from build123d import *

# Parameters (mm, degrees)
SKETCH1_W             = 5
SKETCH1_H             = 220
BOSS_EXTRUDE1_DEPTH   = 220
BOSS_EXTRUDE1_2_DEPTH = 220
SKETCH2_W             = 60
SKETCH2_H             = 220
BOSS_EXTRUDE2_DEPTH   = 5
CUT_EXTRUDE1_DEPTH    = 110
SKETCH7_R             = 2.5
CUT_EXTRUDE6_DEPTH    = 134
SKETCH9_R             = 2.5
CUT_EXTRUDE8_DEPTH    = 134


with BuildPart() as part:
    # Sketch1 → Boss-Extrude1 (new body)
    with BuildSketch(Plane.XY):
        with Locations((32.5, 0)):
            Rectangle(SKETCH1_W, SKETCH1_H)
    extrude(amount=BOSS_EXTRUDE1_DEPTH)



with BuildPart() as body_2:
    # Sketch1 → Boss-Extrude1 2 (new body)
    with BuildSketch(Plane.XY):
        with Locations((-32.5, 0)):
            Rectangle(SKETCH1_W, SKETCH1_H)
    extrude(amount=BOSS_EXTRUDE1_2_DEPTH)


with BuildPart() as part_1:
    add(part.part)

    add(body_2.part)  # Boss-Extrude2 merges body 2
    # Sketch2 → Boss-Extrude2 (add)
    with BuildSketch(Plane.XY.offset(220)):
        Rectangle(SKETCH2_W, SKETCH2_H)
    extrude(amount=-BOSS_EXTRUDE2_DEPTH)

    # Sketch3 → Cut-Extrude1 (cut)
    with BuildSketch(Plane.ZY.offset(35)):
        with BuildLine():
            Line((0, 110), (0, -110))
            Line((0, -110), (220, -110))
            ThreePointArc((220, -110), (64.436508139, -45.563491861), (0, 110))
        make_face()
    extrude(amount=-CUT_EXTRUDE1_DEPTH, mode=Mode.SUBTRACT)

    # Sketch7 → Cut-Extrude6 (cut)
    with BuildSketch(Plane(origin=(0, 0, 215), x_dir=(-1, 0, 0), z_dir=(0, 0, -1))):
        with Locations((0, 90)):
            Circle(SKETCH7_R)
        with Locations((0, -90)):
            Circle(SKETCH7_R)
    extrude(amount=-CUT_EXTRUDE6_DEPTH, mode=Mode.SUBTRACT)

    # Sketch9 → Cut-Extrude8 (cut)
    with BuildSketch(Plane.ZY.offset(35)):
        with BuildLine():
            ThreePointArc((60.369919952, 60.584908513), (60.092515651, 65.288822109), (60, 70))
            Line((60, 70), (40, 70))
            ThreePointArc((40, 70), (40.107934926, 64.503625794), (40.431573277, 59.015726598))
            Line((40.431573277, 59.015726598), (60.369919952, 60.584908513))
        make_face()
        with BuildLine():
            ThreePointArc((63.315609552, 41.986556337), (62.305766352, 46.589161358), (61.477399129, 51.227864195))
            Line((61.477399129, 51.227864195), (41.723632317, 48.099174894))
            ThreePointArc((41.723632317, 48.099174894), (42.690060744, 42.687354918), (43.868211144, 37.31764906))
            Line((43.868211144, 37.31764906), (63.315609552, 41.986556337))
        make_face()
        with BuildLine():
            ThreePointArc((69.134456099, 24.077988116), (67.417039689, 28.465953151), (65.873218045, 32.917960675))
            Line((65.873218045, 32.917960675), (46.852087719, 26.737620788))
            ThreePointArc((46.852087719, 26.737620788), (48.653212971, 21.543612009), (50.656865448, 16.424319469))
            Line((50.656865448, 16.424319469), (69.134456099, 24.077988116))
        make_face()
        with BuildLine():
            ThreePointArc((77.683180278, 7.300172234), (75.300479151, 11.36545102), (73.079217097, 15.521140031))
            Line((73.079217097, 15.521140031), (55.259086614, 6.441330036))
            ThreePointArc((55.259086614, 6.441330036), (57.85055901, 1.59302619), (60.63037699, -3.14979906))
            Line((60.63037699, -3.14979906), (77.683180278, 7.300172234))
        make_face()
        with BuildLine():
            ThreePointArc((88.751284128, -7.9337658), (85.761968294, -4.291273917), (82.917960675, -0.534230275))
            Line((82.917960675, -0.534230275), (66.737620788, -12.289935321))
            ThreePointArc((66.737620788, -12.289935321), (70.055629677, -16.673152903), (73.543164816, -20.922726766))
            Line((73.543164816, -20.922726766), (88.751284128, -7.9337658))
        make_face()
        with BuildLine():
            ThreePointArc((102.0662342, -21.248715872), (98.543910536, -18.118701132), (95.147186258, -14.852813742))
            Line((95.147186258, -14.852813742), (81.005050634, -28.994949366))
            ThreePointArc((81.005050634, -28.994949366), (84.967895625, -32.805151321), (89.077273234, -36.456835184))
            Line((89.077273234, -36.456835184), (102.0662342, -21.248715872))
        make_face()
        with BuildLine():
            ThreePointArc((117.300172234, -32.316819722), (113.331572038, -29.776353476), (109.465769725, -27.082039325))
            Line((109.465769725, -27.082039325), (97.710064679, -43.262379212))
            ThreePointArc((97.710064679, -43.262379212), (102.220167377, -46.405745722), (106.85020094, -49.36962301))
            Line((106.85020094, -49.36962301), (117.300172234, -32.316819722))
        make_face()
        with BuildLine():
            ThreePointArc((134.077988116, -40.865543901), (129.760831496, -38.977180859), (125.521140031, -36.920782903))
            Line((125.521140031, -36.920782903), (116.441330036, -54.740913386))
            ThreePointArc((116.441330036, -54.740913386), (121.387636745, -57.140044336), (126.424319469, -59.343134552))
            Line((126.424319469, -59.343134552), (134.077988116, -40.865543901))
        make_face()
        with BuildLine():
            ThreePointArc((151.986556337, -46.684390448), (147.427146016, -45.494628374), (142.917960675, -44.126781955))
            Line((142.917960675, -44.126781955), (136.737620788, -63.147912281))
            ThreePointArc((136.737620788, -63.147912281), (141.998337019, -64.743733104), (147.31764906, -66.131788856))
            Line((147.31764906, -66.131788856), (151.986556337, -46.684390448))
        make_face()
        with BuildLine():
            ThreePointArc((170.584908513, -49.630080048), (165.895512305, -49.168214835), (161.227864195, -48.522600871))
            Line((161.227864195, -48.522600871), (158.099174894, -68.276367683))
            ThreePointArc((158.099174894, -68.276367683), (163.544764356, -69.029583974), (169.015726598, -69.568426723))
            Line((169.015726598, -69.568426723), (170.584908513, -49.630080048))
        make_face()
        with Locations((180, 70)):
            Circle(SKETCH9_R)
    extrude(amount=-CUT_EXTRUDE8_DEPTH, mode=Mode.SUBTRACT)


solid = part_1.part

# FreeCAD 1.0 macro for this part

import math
import FreeCAD as App
import Part
import Sketcher

V = App.Vector
Q = App.Units.Quantity


def add_polygon(sketch, points):
    """Adds a closed chain of lines whose ends are joined by coincident constraints."""
    first, n = sketch.GeometryCount, len(points)
    for a, b in zip(points, points[1:] + points[:1]):
        sketch.addGeometry(Part.LineSegment(App.Vector(*a, 0), App.Vector(*b, 0)), False)
    for i in range(n):
        sketch.addConstraint(Sketcher.Constraint("Coincident", first + i, 2, first + (i + 1) % n, 1))

doc = App.newDocument("Part")
params = doc.addObject("Spreadsheet::Sheet", "Params")
for row, (alias, value) in enumerate([
    ("sketch1_width", "5 mm"),
    ("sketch1_height", "220 mm"),
    ("pad1_length", "220 mm"),
    ("sketch2_width", "5 mm"),
    ("sketch2_height", "220 mm"),
    ("pad2_length", "220 mm"),
    ("sketch3_width", "60 mm"),
    ("sketch3_height", "220 mm"),
    ("pad3_length", "5 mm"),
    ("sketch4_radius", "220 mm"),
    ("pocket1_length", "110 mm"),
    ("sketch5_diameter", "5 mm"),
    ("pocket2_length", "134 mm"),
    ("sketch6_diameter", "5 mm"),
    ("sketch6_radius", "120 mm"),
    ("sketch6_radius2", "140 mm"),
    ("pocket3_length", "134 mm"),
], start=1):
    params.set(f"A{row}", alias)
    params.set(f"B{row}", "=" + value)
    params.setAlias(f"B{row}", alias)

body = doc.addObject("PartDesign::Body", "Body")

# Sketch on XY plane
sketch1 = doc.addObject("Sketcher::SketchObject", "Sketch")
body.addObject(sketch1)
sketch1.AttachmentSupport = (doc.XY_Plane, [""])
sketch1.MapMode = "FlatFace"
add_polygon(sketch1, [(30, 110), (30, -110), (35, -110), (35, 110)])  # lines 0-3
sketch1.addConstraint(Sketcher.Constraint("Vertical", 0))
sketch1.addConstraint(Sketcher.Constraint("Horizontal", 1))
sketch1.addConstraint(Sketcher.Constraint("Vertical", 2))
sketch1.addConstraint(Sketcher.Constraint("Horizontal", 3))
sketch1.addConstraint(Sketcher.Constraint("DistanceX", 1, 1, 1, 2, 5.0))
sketch1.addConstraint(Sketcher.Constraint("DistanceY", 0, 2, 0, 1, 220.0))
sketch1.addConstraint(Sketcher.Constraint("DistanceX", -1, 1, 0, 2, 30.0))
sketch1.addConstraint(Sketcher.Constraint("DistanceY", 0, 2, -1, 1, 110.0))
sketch1.setExpression("Constraints[8]", "Params.sketch1_width")
sketch1.setExpression("Constraints[9]", "Params.sketch1_height")
pad1 = doc.addObject("PartDesign::Pad", "Pad")
body.addObject(pad1)
pad1.Profile = sketch1
pad1.setExpression("Length", "Params.pad1_length")
body2 = doc.addObject("PartDesign::Body", "Body001")

# Sketch on XY plane
sketch2 = doc.addObject("Sketcher::SketchObject", "Sketch001")
body2.addObject(sketch2)
sketch2.AttachmentSupport = (doc.getObject("XY_Plane001"), [""])
sketch2.MapMode = "FlatFace"
add_polygon(sketch2, [(-35, 110), (-35, -110), (-30, -110), (-30, 110)])  # lines 0-3
sketch2.addConstraint(Sketcher.Constraint("Vertical", 0))
sketch2.addConstraint(Sketcher.Constraint("Horizontal", 1))
sketch2.addConstraint(Sketcher.Constraint("Vertical", 2))
sketch2.addConstraint(Sketcher.Constraint("Horizontal", 3))
sketch2.addConstraint(Sketcher.Constraint("DistanceX", 1, 1, 1, 2, 5.0))
sketch2.addConstraint(Sketcher.Constraint("DistanceY", 0, 2, 0, 1, 220.0))
sketch2.addConstraint(Sketcher.Constraint("DistanceX", 0, 2, -1, 1, 35.0))
sketch2.addConstraint(Sketcher.Constraint("DistanceY", 0, 2, -1, 1, 110.0))
sketch2.setExpression("Constraints[8]", "Params.sketch2_width")
sketch2.setExpression("Constraints[9]", "Params.sketch2_height")
pad2 = doc.addObject("PartDesign::Pad", "Pad001")
body2.addObject(pad2)
pad2.Profile = sketch2
pad2.setExpression("Length", "Params.pad2_length")
body.AllowCompound = True
doc.recompute()

boolean = doc.addObject("PartDesign::Boolean", "Boolean")
body.addObject(boolean)
boolean.Type = "Fuse"
boolean.addObjects([body2])

# Sketch on XY plane
sketch3 = doc.addObject("Sketcher::SketchObject", "Sketch002")
body.addObject(sketch3)
sketch3.AttachmentSupport = (doc.XY_Plane, [""])
sketch3.MapMode = "FlatFace"
sketch3.AttachmentOffset = App.Placement(V(0, 0, 220), App.Rotation())
add_polygon(sketch3, [(-30, 110), (-30, -110), (30, -110), (30, 110)])  # lines 0-3
sketch3.addConstraint(Sketcher.Constraint("Vertical", 0))
sketch3.addConstraint(Sketcher.Constraint("Horizontal", 1))
sketch3.addConstraint(Sketcher.Constraint("Vertical", 2))
sketch3.addConstraint(Sketcher.Constraint("Horizontal", 3))
sketch3.addConstraint(Sketcher.Constraint("Symmetric", 0, 2, 2, 2, -1, 1))
sketch3.addConstraint(Sketcher.Constraint("DistanceX", 1, 1, 1, 2, 60.0))
sketch3.addConstraint(Sketcher.Constraint("DistanceY", 0, 2, 0, 1, 220.0))
sketch3.setExpression("Constraints[9]", "Params.sketch3_width")
sketch3.setExpression("Constraints[10]", "Params.sketch3_height")
pad3 = doc.addObject("PartDesign::Pad", "Pad002")
body.addObject(pad3)
pad3.Profile = sketch3
pad3.setExpression("Length", "Params.pad3_length")
pad3.Reversed = True

# Sketch on YZ plane
sketch4 = doc.addObject("Sketcher::SketchObject", "Sketch003")
body.addObject(sketch4)
sketch4.AttachmentSupport = (doc.YZ_Plane, [""])
sketch4.MapMode = "FlatFace"
sketch4.AttachmentOffset = App.Placement(V(0, 0, -35), App.Rotation())
sketch4.addGeometry(Part.LineSegment(V(110, 0, 0), V(-110, 0, 0)), False)
sketch4.addGeometry(Part.LineSegment(V(-110, 0, 0), V(-110, 220, 0)), False)
sketch4.addGeometry(Part.ArcOfCircle(Part.Circle(V(110, 220, 0), V(0, 0, 1), 220), math.radians(180), math.radians(270)), False)
sketch4.addConstraint(Sketcher.Constraint("Coincident", 0, 2, 1, 1))
sketch4.addConstraint(Sketcher.Constraint("Tangent", 1, 2, 2, 1))
sketch4.addConstraint(Sketcher.Constraint("Tangent", 2, 2, 0, 1))
sketch4.addConstraint(Sketcher.Constraint("Horizontal", 0))
sketch4.addConstraint(Sketcher.Constraint("Vertical", 1))
sketch4.addConstraint(Sketcher.Constraint("Symmetric", 0, 2, 2, 2, -1, 1))
sketch4.addConstraint(Sketcher.Constraint("Radius", 2, 220.0))
sketch4.setExpression("Constraints[6]", "Params.sketch4_radius")
pocket1 = doc.addObject("PartDesign::Pocket", "Pocket")
body.addObject(pocket1)
pocket1.Profile = sketch4
pocket1.setExpression("Length", "Params.pocket1_length")
pocket1.Reversed = True

# Sketch on XY plane
sketch5 = doc.addObject("Sketcher::SketchObject", "Sketch004")
body.addObject(sketch5)
sketch5.AttachmentSupport = (doc.XY_Plane, [""])
sketch5.MapMode = "FlatFace"
sketch5.AttachmentOffset = App.Placement(V(0, 0, 215), App.Rotation())
sketch5.addGeometry(Part.Circle(V(0, 90, 0), V(0, 0, 1), 2.5), False)
sketch5.addGeometry(Part.Circle(V(0, -90, 0), V(0, 0, 1), 2.5), False)
sketch5.addConstraint(Sketcher.Constraint("Equal", 0, 1))
sketch5.addConstraint(Sketcher.Constraint("Symmetric", 0, 3, 1, 3, -1, 1))
sketch5.addConstraint(Sketcher.Constraint("PointOnObject", 0, 3, -2))
sketch5.addConstraint(Sketcher.Constraint("Diameter", 0, 5.0))
sketch5.addConstraint(Sketcher.Constraint("DistanceY", -1, 1, 0, 3, 90.0))
sketch5.setExpression("Constraints[3]", "Params.sketch5_diameter")
pocket2 = doc.addObject("PartDesign::Pocket", "Pocket001")
body.addObject(pocket2)
pocket2.Profile = sketch5
pocket2.setExpression("Length", "Params.pocket2_length")
pocket2.Reversed = True

# Sketch on YZ plane
sketch6 = doc.addObject("Sketcher::SketchObject", "Sketch005")
body.addObject(sketch6)
sketch6.AttachmentSupport = (doc.YZ_Plane, [""])
sketch6.MapMode = "FlatFace"
sketch6.AttachmentOffset = App.Placement(V(0, 0, -35), App.Rotation())
sketch6.addGeometry(Part.ArcOfCircle(Part.Circle(V(70, 180, 0), V(0, 0, 1), 120), math.radians(-94.5), math.radians(-90)), False)
sketch6.addGeometry(Part.LineSegment(V(70, 60, 0), V(70, 40, 0)), False)
sketch6.addGeometry(Part.ArcOfCircle(Part.Circle(V(70, 180, 0), V(0, 0, 1), 140), math.radians(-94.5), math.radians(-90)), False)
sketch6.addGeometry(Part.LineSegment(V(59, 40.4, 0), V(60.6, 60.4, 0)), False)
sketch6.addGeometry(Part.ArcOfCircle(Part.Circle(V(70, 180, 0), V(0, 0, 1), 120), math.radians(-103.5), math.radians(-99)), False)
sketch6.addGeometry(Part.LineSegment(V(51.2, 61.5, 0), V(48.1, 41.7, 0)), False)
sketch6.addGeometry(Part.ArcOfCircle(Part.Circle(V(70, 180, 0), V(0, 0, 1), 140), math.radians(-103.5), math.radians(-99)), False)
sketch6.addGeometry(Part.LineSegment(V(37.3, 43.9, 0), V(42, 63.3, 0)), False)
sketch6.addGeometry(Part.ArcOfCircle(Part.Circle(V(70, 180, 0), V(0, 0, 1), 120), math.radians(-112.5), math.radians(-108)), False)
sketch6.addGeometry(Part.LineSegment(V(32.9, 65.9, 0), V(26.7, 46.9, 0)), False)
sketch6.addGeometry(Part.ArcOfCircle(Part.Circle(V(70, 180, 0), V(0, 0, 1), 140), math.radians(-112.5), math.radians(-108)), False)
sketch6.addGeometry(Part.LineSegment(V(16.4, 50.7, 0), V(24.1, 69.1, 0)), False)
sketch6.addGeometry(Part.ArcOfCircle(Part.Circle(V(70, 180, 0), V(0, 0, 1), 120), math.radians(-121.5), math.radians(-117)), False)
sketch6.addGeometry(Part.LineSegment(V(15.5, 73.1, 0), V(6.4, 55.3, 0)), False)
sketch6.addGeometry(Part.ArcOfCircle(Part.Circle(V(70, 180, 0), V(0, 0, 1), 140), math.radians(-121.5), math.radians(-117)), False)
sketch6.addGeometry(Part.LineSegment(V(-3.1, 60.6, 0), V(7.3, 77.7, 0)), False)
sketch6.addGeometry(Part.ArcOfCircle(Part.Circle(V(70, 180, 0), V(0, 0, 1), 120), math.radians(-130.5), math.radians(-126)), False)
sketch6.addGeometry(Part.LineSegment(V(-0.5, 82.9, 0), V(-12.3, 66.7, 0)), False)
sketch6.addGeometry(Part.ArcOfCircle(Part.Circle(V(70, 180, 0), V(0, 0, 1), 140), math.radians(-130.5), math.radians(-126)), False)
sketch6.addGeometry(Part.LineSegment(V(-20.9, 73.5, 0), V(-7.9, 88.8, 0)), False)
sketch6.addGeometry(Part.ArcOfCircle(Part.Circle(V(70, 180, 0), V(0, 0, 1), 120), math.radians(-139.5), math.radians(-135)), False)
sketch6.addGeometry(Part.LineSegment(V(-14.9, 95.1, 0), V(-29, 81, 0)), False)
sketch6.addGeometry(Part.ArcOfCircle(Part.Circle(V(70, 180, 0), V(0, 0, 1), 140), math.radians(-139.5), math.radians(-135)), False)
sketch6.addGeometry(Part.LineSegment(V(-36.5, 89.1, 0), V(-21.2, 102.1, 0)), False)
sketch6.addGeometry(Part.ArcOfCircle(Part.Circle(V(70, 180, 0), V(0, 0, 1), 120), math.radians(-148.5), math.radians(-144)), False)
sketch6.addGeometry(Part.LineSegment(V(-27.1, 109.5, 0), V(-43.3, 97.7, 0)), False)
sketch6.addGeometry(Part.ArcOfCircle(Part.Circle(V(70, 180, 0), V(0, 0, 1), 140), math.radians(-148.5), math.radians(-144)), False)
sketch6.addGeometry(Part.LineSegment(V(-49.4, 106.9, 0), V(-32.3, 117.3, 0)), False)
sketch6.addGeometry(Part.ArcOfCircle(Part.Circle(V(70, 180, 0), V(0, 0, 1), 120), math.radians(-157.5), math.radians(-153)), False)
sketch6.addGeometry(Part.LineSegment(V(-36.9, 125.5, 0), V(-54.7, 116.4, 0)), False)
sketch6.addGeometry(Part.ArcOfCircle(Part.Circle(V(70, 180, 0), V(0, 0, 1), 140), math.radians(-157.5), math.radians(-153)), False)
sketch6.addGeometry(Part.LineSegment(V(-59.3, 126.4, 0), V(-40.9, 134.1, 0)), False)
sketch6.addGeometry(Part.ArcOfCircle(Part.Circle(V(70, 180, 0), V(0, 0, 1), 120), math.radians(-166.5), math.radians(-162)), False)
sketch6.addGeometry(Part.LineSegment(V(-44.1, 142.9, 0), V(-63.1, 136.7, 0)), False)
sketch6.addGeometry(Part.ArcOfCircle(Part.Circle(V(70, 180, 0), V(0, 0, 1), 140), math.radians(-166.5), math.radians(-162)), False)
sketch6.addGeometry(Part.LineSegment(V(-66.1, 147.3, 0), V(-46.7, 152, 0)), False)
sketch6.addGeometry(Part.ArcOfCircle(Part.Circle(V(70, 180, 0), V(0, 0, 1), 120), math.radians(-175.5), math.radians(-171)), False)
sketch6.addGeometry(Part.LineSegment(V(-48.5, 161.2, 0), V(-68.3, 158.1, 0)), False)
sketch6.addGeometry(Part.ArcOfCircle(Part.Circle(V(70, 180, 0), V(0, 0, 1), 140), math.radians(-175.5), math.radians(-171)), False)
sketch6.addGeometry(Part.LineSegment(V(-69.6, 169, 0), V(-49.6, 170.6, 0)), False)
sketch6.addGeometry(Part.Circle(V(70, 180, 0), V(0, 0, 1), 2.5), False)
sketch6.addConstraint(Sketcher.Constraint("Coincident", 0, 2, 1, 1))
sketch6.addConstraint(Sketcher.Constraint("Coincident", 1, 2, 2, 2))
sketch6.addConstraint(Sketcher.Constraint("Coincident", 2, 1, 3, 1))
sketch6.addConstraint(Sketcher.Constraint("Coincident", 3, 2, 0, 1))
sketch6.addConstraint(Sketcher.Constraint("Coincident", 4, 2, 5, 1))
sketch6.addConstraint(Sketcher.Constraint("Coincident", 5, 2, 6, 2))
sketch6.addConstraint(Sketcher.Constraint("Coincident", 6, 1, 7, 1))
sketch6.addConstraint(Sketcher.Constraint("Coincident", 7, 2, 4, 1))
sketch6.addConstraint(Sketcher.Constraint("Coincident", 8, 2, 9, 1))
sketch6.addConstraint(Sketcher.Constraint("Coincident", 9, 2, 10, 2))
sketch6.addConstraint(Sketcher.Constraint("Coincident", 10, 1, 11, 1))
sketch6.addConstraint(Sketcher.Constraint("Coincident", 11, 2, 8, 1))
sketch6.addConstraint(Sketcher.Constraint("Coincident", 12, 2, 13, 1))
sketch6.addConstraint(Sketcher.Constraint("Coincident", 13, 2, 14, 2))
sketch6.addConstraint(Sketcher.Constraint("Coincident", 14, 1, 15, 1))
sketch6.addConstraint(Sketcher.Constraint("Coincident", 15, 2, 12, 1))
sketch6.addConstraint(Sketcher.Constraint("Coincident", 16, 2, 17, 1))
sketch6.addConstraint(Sketcher.Constraint("Coincident", 17, 2, 18, 2))
sketch6.addConstraint(Sketcher.Constraint("Coincident", 18, 1, 19, 1))
sketch6.addConstraint(Sketcher.Constraint("Coincident", 19, 2, 16, 1))
sketch6.addConstraint(Sketcher.Constraint("Coincident", 20, 2, 21, 1))
sketch6.addConstraint(Sketcher.Constraint("Coincident", 21, 2, 22, 2))
sketch6.addConstraint(Sketcher.Constraint("Coincident", 22, 1, 23, 1))
sketch6.addConstraint(Sketcher.Constraint("Coincident", 23, 2, 20, 1))
sketch6.addConstraint(Sketcher.Constraint("Coincident", 24, 2, 25, 1))
sketch6.addConstraint(Sketcher.Constraint("Coincident", 25, 2, 26, 2))
sketch6.addConstraint(Sketcher.Constraint("Coincident", 26, 1, 27, 1))
sketch6.addConstraint(Sketcher.Constraint("Coincident", 27, 2, 24, 1))
sketch6.addConstraint(Sketcher.Constraint("Coincident", 28, 2, 29, 1))
sketch6.addConstraint(Sketcher.Constraint("Coincident", 29, 2, 30, 2))
sketch6.addConstraint(Sketcher.Constraint("Coincident", 30, 1, 31, 1))
sketch6.addConstraint(Sketcher.Constraint("Coincident", 31, 2, 28, 1))
sketch6.addConstraint(Sketcher.Constraint("Coincident", 32, 2, 33, 1))
sketch6.addConstraint(Sketcher.Constraint("Coincident", 33, 2, 34, 2))
sketch6.addConstraint(Sketcher.Constraint("Coincident", 34, 1, 35, 1))
sketch6.addConstraint(Sketcher.Constraint("Coincident", 35, 2, 32, 1))
sketch6.addConstraint(Sketcher.Constraint("Coincident", 36, 2, 37, 1))
sketch6.addConstraint(Sketcher.Constraint("Coincident", 37, 2, 38, 2))
sketch6.addConstraint(Sketcher.Constraint("Coincident", 38, 1, 39, 1))
sketch6.addConstraint(Sketcher.Constraint("Coincident", 39, 2, 36, 1))
sketch6.addConstraint(Sketcher.Constraint("Vertical", 1))
sketch6.addConstraint(Sketcher.Constraint("Coincident", 2, 3, 0, 3))
sketch6.addConstraint(Sketcher.Constraint("Coincident", 4, 3, 0, 3))
sketch6.addConstraint(Sketcher.Constraint("Coincident", 6, 3, 0, 3))
sketch6.addConstraint(Sketcher.Constraint("Coincident", 8, 3, 0, 3))
sketch6.addConstraint(Sketcher.Constraint("Coincident", 10, 3, 0, 3))
sketch6.addConstraint(Sketcher.Constraint("Coincident", 12, 3, 0, 3))
sketch6.addConstraint(Sketcher.Constraint("Coincident", 14, 3, 0, 3))
sketch6.addConstraint(Sketcher.Constraint("Coincident", 16, 3, 0, 3))
sketch6.addConstraint(Sketcher.Constraint("Coincident", 18, 3, 0, 3))
sketch6.addConstraint(Sketcher.Constraint("Coincident", 20, 3, 0, 3))
sketch6.addConstraint(Sketcher.Constraint("Coincident", 22, 3, 0, 3))
sketch6.addConstraint(Sketcher.Constraint("Coincident", 24, 3, 0, 3))
sketch6.addConstraint(Sketcher.Constraint("Coincident", 26, 3, 0, 3))
sketch6.addConstraint(Sketcher.Constraint("Coincident", 28, 3, 0, 3))
sketch6.addConstraint(Sketcher.Constraint("Coincident", 30, 3, 0, 3))
sketch6.addConstraint(Sketcher.Constraint("Coincident", 32, 3, 0, 3))
sketch6.addConstraint(Sketcher.Constraint("Coincident", 34, 3, 0, 3))
sketch6.addConstraint(Sketcher.Constraint("Coincident", 36, 3, 0, 3))
sketch6.addConstraint(Sketcher.Constraint("Coincident", 38, 3, 0, 3))
sketch6.addConstraint(Sketcher.Constraint("Coincident", 40, 3, 0, 3))
sketch6.addConstraint(Sketcher.Constraint("Equal", 0, 4))
sketch6.addConstraint(Sketcher.Constraint("Equal", 2, 6))
sketch6.addConstraint(Sketcher.Constraint("Equal", 4, 8))
sketch6.addConstraint(Sketcher.Constraint("Equal", 6, 10))
sketch6.addConstraint(Sketcher.Constraint("Equal", 8, 12))
sketch6.addConstraint(Sketcher.Constraint("Equal", 10, 14))
sketch6.addConstraint(Sketcher.Constraint("Equal", 12, 16))
sketch6.addConstraint(Sketcher.Constraint("Equal", 14, 18))
sketch6.addConstraint(Sketcher.Constraint("Equal", 16, 20))
sketch6.addConstraint(Sketcher.Constraint("Equal", 18, 22))
sketch6.addConstraint(Sketcher.Constraint("Equal", 20, 24))
sketch6.addConstraint(Sketcher.Constraint("Equal", 22, 26))
sketch6.addConstraint(Sketcher.Constraint("Equal", 24, 28))
sketch6.addConstraint(Sketcher.Constraint("Equal", 26, 30))
sketch6.addConstraint(Sketcher.Constraint("Equal", 28, 32))
sketch6.addConstraint(Sketcher.Constraint("Equal", 30, 34))
sketch6.addConstraint(Sketcher.Constraint("Equal", 32, 36))
sketch6.addConstraint(Sketcher.Constraint("Equal", 34, 38))
sketch6.addConstraint(Sketcher.Constraint("Vertical", 40, 3, 0, 2))
sketch6.addConstraint(Sketcher.Constraint("Diameter", 40, 5.0))
sketch6.addConstraint(Sketcher.Constraint("Radius", 0, 120.0))
sketch6.addConstraint(Sketcher.Constraint("Radius", 2, 140.0))
sketch6.addConstraint(Sketcher.Constraint("Angle", 5, Q("-99 deg")))
sketch6.addConstraint(Sketcher.Constraint("Angle", 9, Q("-108 deg")))
sketch6.addConstraint(Sketcher.Constraint("Angle", 13, Q("-117 deg")))
sketch6.addConstraint(Sketcher.Constraint("Angle", 17, Q("-126 deg")))
sketch6.addConstraint(Sketcher.Constraint("Angle", 21, Q("-135 deg")))
sketch6.addConstraint(Sketcher.Constraint("Angle", 25, Q("-144 deg")))
sketch6.addConstraint(Sketcher.Constraint("Angle", 29, Q("-153 deg")))
sketch6.addConstraint(Sketcher.Constraint("Angle", 33, Q("-162 deg")))
sketch6.addConstraint(Sketcher.Constraint("Angle", 37, Q("-171 deg")))
sketch6.addConstraint(Sketcher.Constraint("DistanceX", -1, 1, 0, 3, 70.0))
sketch6.addConstraint(Sketcher.Constraint("DistanceY", -1, 1, 0, 3, 180.0))
sketch6.addConstraint(Sketcher.Constraint("Angle", 3, Q("85.5 deg")))
sketch6.addConstraint(Sketcher.Constraint("Angle", 7, Q("76.5 deg")))
sketch6.addConstraint(Sketcher.Constraint("Angle", 11, Q("67.5 deg")))
sketch6.addConstraint(Sketcher.Constraint("Angle", 15, Q("58.5 deg")))
sketch6.addConstraint(Sketcher.Constraint("Angle", 19, Q("49.5 deg")))
sketch6.addConstraint(Sketcher.Constraint("Angle", 23, Q("40.5 deg")))
sketch6.addConstraint(Sketcher.Constraint("Angle", 27, Q("31.5 deg")))
sketch6.addConstraint(Sketcher.Constraint("Angle", 31, Q("22.5 deg")))
sketch6.addConstraint(Sketcher.Constraint("Angle", 35, Q("13.5 deg")))
sketch6.addConstraint(Sketcher.Constraint("Angle", 39, Q("4.5 deg")))
sketch6.addConstraint(Sketcher.Constraint("DistanceY", -1, 1, 4, 2, 61.477399))
sketch6.addConstraint(Sketcher.Constraint("DistanceX", 14, 1, -1, 1, 3.149799))
sketch6.addConstraint(Sketcher.Constraint("DistanceY", -1, 1, 26, 1, 106.850201))
sketch6.addConstraint(Sketcher.Constraint("DistanceX", 36, 2, -1, 1, 48.522601))
sketch6.addConstraint(Sketcher.Constraint("DistanceX", -1, 1, 3, 2, 60.584909))
sketch6.addConstraint(Sketcher.Constraint("DistanceX", -1, 1, 6, 1, 37.317649))
sketch6.addConstraint(Sketcher.Constraint("DistanceX", -1, 1, 8, 2, 32.917961))
sketch6.addConstraint(Sketcher.Constraint("DistanceX", -1, 1, 10, 1, 16.424319))
sketch6.addConstraint(Sketcher.Constraint("DistanceX", -1, 1, 12, 2, 15.52114))
sketch6.addConstraint(Sketcher.Constraint("DistanceX", 16, 2, -1, 1, 0.53423))
sketch6.addConstraint(Sketcher.Constraint("DistanceX", 21, 2, -1, 1, 28.994949))
sketch6.addConstraint(Sketcher.Constraint("DistanceX", 24, 2, -1, 1, 27.082039))
sketch6.addConstraint(Sketcher.Constraint("DistanceY", -1, 1, 28, 2, 125.52114))
sketch6.addConstraint(Sketcher.Constraint("DistanceY", -1, 1, 30, 1, 126.424319))
sketch6.addConstraint(Sketcher.Constraint("DistanceX", 32, 2, -1, 1, 44.126782))
sketch6.addConstraint(Sketcher.Constraint("DistanceX", 34, 1, -1, 1, 66.131789))
sketch6.addConstraint(Sketcher.Constraint("DistanceX", 39, 2, -1, 1, 49.63008))
sketch6.addConstraint(Sketcher.Constraint("DistanceX", 18, 1, -1, 1, 20.922727))
sketch6.addConstraint(Sketcher.Constraint("DistanceX", 22, 1, -1, 1, 36.456835))
sketch6.setExpression("Constraints[80]", "Params.sketch6_diameter")
sketch6.setExpression("Constraints[81]", "Params.sketch6_radius")
sketch6.setExpression("Constraints[82]", "Params.sketch6_radius2")
pocket3 = doc.addObject("PartDesign::Pocket", "Pocket002")
body.addObject(pocket3)
pocket3.Profile = sketch6
pocket3.setExpression("Length", "Params.pocket3_length")
pocket3.Reversed = True

doc.recompute()
